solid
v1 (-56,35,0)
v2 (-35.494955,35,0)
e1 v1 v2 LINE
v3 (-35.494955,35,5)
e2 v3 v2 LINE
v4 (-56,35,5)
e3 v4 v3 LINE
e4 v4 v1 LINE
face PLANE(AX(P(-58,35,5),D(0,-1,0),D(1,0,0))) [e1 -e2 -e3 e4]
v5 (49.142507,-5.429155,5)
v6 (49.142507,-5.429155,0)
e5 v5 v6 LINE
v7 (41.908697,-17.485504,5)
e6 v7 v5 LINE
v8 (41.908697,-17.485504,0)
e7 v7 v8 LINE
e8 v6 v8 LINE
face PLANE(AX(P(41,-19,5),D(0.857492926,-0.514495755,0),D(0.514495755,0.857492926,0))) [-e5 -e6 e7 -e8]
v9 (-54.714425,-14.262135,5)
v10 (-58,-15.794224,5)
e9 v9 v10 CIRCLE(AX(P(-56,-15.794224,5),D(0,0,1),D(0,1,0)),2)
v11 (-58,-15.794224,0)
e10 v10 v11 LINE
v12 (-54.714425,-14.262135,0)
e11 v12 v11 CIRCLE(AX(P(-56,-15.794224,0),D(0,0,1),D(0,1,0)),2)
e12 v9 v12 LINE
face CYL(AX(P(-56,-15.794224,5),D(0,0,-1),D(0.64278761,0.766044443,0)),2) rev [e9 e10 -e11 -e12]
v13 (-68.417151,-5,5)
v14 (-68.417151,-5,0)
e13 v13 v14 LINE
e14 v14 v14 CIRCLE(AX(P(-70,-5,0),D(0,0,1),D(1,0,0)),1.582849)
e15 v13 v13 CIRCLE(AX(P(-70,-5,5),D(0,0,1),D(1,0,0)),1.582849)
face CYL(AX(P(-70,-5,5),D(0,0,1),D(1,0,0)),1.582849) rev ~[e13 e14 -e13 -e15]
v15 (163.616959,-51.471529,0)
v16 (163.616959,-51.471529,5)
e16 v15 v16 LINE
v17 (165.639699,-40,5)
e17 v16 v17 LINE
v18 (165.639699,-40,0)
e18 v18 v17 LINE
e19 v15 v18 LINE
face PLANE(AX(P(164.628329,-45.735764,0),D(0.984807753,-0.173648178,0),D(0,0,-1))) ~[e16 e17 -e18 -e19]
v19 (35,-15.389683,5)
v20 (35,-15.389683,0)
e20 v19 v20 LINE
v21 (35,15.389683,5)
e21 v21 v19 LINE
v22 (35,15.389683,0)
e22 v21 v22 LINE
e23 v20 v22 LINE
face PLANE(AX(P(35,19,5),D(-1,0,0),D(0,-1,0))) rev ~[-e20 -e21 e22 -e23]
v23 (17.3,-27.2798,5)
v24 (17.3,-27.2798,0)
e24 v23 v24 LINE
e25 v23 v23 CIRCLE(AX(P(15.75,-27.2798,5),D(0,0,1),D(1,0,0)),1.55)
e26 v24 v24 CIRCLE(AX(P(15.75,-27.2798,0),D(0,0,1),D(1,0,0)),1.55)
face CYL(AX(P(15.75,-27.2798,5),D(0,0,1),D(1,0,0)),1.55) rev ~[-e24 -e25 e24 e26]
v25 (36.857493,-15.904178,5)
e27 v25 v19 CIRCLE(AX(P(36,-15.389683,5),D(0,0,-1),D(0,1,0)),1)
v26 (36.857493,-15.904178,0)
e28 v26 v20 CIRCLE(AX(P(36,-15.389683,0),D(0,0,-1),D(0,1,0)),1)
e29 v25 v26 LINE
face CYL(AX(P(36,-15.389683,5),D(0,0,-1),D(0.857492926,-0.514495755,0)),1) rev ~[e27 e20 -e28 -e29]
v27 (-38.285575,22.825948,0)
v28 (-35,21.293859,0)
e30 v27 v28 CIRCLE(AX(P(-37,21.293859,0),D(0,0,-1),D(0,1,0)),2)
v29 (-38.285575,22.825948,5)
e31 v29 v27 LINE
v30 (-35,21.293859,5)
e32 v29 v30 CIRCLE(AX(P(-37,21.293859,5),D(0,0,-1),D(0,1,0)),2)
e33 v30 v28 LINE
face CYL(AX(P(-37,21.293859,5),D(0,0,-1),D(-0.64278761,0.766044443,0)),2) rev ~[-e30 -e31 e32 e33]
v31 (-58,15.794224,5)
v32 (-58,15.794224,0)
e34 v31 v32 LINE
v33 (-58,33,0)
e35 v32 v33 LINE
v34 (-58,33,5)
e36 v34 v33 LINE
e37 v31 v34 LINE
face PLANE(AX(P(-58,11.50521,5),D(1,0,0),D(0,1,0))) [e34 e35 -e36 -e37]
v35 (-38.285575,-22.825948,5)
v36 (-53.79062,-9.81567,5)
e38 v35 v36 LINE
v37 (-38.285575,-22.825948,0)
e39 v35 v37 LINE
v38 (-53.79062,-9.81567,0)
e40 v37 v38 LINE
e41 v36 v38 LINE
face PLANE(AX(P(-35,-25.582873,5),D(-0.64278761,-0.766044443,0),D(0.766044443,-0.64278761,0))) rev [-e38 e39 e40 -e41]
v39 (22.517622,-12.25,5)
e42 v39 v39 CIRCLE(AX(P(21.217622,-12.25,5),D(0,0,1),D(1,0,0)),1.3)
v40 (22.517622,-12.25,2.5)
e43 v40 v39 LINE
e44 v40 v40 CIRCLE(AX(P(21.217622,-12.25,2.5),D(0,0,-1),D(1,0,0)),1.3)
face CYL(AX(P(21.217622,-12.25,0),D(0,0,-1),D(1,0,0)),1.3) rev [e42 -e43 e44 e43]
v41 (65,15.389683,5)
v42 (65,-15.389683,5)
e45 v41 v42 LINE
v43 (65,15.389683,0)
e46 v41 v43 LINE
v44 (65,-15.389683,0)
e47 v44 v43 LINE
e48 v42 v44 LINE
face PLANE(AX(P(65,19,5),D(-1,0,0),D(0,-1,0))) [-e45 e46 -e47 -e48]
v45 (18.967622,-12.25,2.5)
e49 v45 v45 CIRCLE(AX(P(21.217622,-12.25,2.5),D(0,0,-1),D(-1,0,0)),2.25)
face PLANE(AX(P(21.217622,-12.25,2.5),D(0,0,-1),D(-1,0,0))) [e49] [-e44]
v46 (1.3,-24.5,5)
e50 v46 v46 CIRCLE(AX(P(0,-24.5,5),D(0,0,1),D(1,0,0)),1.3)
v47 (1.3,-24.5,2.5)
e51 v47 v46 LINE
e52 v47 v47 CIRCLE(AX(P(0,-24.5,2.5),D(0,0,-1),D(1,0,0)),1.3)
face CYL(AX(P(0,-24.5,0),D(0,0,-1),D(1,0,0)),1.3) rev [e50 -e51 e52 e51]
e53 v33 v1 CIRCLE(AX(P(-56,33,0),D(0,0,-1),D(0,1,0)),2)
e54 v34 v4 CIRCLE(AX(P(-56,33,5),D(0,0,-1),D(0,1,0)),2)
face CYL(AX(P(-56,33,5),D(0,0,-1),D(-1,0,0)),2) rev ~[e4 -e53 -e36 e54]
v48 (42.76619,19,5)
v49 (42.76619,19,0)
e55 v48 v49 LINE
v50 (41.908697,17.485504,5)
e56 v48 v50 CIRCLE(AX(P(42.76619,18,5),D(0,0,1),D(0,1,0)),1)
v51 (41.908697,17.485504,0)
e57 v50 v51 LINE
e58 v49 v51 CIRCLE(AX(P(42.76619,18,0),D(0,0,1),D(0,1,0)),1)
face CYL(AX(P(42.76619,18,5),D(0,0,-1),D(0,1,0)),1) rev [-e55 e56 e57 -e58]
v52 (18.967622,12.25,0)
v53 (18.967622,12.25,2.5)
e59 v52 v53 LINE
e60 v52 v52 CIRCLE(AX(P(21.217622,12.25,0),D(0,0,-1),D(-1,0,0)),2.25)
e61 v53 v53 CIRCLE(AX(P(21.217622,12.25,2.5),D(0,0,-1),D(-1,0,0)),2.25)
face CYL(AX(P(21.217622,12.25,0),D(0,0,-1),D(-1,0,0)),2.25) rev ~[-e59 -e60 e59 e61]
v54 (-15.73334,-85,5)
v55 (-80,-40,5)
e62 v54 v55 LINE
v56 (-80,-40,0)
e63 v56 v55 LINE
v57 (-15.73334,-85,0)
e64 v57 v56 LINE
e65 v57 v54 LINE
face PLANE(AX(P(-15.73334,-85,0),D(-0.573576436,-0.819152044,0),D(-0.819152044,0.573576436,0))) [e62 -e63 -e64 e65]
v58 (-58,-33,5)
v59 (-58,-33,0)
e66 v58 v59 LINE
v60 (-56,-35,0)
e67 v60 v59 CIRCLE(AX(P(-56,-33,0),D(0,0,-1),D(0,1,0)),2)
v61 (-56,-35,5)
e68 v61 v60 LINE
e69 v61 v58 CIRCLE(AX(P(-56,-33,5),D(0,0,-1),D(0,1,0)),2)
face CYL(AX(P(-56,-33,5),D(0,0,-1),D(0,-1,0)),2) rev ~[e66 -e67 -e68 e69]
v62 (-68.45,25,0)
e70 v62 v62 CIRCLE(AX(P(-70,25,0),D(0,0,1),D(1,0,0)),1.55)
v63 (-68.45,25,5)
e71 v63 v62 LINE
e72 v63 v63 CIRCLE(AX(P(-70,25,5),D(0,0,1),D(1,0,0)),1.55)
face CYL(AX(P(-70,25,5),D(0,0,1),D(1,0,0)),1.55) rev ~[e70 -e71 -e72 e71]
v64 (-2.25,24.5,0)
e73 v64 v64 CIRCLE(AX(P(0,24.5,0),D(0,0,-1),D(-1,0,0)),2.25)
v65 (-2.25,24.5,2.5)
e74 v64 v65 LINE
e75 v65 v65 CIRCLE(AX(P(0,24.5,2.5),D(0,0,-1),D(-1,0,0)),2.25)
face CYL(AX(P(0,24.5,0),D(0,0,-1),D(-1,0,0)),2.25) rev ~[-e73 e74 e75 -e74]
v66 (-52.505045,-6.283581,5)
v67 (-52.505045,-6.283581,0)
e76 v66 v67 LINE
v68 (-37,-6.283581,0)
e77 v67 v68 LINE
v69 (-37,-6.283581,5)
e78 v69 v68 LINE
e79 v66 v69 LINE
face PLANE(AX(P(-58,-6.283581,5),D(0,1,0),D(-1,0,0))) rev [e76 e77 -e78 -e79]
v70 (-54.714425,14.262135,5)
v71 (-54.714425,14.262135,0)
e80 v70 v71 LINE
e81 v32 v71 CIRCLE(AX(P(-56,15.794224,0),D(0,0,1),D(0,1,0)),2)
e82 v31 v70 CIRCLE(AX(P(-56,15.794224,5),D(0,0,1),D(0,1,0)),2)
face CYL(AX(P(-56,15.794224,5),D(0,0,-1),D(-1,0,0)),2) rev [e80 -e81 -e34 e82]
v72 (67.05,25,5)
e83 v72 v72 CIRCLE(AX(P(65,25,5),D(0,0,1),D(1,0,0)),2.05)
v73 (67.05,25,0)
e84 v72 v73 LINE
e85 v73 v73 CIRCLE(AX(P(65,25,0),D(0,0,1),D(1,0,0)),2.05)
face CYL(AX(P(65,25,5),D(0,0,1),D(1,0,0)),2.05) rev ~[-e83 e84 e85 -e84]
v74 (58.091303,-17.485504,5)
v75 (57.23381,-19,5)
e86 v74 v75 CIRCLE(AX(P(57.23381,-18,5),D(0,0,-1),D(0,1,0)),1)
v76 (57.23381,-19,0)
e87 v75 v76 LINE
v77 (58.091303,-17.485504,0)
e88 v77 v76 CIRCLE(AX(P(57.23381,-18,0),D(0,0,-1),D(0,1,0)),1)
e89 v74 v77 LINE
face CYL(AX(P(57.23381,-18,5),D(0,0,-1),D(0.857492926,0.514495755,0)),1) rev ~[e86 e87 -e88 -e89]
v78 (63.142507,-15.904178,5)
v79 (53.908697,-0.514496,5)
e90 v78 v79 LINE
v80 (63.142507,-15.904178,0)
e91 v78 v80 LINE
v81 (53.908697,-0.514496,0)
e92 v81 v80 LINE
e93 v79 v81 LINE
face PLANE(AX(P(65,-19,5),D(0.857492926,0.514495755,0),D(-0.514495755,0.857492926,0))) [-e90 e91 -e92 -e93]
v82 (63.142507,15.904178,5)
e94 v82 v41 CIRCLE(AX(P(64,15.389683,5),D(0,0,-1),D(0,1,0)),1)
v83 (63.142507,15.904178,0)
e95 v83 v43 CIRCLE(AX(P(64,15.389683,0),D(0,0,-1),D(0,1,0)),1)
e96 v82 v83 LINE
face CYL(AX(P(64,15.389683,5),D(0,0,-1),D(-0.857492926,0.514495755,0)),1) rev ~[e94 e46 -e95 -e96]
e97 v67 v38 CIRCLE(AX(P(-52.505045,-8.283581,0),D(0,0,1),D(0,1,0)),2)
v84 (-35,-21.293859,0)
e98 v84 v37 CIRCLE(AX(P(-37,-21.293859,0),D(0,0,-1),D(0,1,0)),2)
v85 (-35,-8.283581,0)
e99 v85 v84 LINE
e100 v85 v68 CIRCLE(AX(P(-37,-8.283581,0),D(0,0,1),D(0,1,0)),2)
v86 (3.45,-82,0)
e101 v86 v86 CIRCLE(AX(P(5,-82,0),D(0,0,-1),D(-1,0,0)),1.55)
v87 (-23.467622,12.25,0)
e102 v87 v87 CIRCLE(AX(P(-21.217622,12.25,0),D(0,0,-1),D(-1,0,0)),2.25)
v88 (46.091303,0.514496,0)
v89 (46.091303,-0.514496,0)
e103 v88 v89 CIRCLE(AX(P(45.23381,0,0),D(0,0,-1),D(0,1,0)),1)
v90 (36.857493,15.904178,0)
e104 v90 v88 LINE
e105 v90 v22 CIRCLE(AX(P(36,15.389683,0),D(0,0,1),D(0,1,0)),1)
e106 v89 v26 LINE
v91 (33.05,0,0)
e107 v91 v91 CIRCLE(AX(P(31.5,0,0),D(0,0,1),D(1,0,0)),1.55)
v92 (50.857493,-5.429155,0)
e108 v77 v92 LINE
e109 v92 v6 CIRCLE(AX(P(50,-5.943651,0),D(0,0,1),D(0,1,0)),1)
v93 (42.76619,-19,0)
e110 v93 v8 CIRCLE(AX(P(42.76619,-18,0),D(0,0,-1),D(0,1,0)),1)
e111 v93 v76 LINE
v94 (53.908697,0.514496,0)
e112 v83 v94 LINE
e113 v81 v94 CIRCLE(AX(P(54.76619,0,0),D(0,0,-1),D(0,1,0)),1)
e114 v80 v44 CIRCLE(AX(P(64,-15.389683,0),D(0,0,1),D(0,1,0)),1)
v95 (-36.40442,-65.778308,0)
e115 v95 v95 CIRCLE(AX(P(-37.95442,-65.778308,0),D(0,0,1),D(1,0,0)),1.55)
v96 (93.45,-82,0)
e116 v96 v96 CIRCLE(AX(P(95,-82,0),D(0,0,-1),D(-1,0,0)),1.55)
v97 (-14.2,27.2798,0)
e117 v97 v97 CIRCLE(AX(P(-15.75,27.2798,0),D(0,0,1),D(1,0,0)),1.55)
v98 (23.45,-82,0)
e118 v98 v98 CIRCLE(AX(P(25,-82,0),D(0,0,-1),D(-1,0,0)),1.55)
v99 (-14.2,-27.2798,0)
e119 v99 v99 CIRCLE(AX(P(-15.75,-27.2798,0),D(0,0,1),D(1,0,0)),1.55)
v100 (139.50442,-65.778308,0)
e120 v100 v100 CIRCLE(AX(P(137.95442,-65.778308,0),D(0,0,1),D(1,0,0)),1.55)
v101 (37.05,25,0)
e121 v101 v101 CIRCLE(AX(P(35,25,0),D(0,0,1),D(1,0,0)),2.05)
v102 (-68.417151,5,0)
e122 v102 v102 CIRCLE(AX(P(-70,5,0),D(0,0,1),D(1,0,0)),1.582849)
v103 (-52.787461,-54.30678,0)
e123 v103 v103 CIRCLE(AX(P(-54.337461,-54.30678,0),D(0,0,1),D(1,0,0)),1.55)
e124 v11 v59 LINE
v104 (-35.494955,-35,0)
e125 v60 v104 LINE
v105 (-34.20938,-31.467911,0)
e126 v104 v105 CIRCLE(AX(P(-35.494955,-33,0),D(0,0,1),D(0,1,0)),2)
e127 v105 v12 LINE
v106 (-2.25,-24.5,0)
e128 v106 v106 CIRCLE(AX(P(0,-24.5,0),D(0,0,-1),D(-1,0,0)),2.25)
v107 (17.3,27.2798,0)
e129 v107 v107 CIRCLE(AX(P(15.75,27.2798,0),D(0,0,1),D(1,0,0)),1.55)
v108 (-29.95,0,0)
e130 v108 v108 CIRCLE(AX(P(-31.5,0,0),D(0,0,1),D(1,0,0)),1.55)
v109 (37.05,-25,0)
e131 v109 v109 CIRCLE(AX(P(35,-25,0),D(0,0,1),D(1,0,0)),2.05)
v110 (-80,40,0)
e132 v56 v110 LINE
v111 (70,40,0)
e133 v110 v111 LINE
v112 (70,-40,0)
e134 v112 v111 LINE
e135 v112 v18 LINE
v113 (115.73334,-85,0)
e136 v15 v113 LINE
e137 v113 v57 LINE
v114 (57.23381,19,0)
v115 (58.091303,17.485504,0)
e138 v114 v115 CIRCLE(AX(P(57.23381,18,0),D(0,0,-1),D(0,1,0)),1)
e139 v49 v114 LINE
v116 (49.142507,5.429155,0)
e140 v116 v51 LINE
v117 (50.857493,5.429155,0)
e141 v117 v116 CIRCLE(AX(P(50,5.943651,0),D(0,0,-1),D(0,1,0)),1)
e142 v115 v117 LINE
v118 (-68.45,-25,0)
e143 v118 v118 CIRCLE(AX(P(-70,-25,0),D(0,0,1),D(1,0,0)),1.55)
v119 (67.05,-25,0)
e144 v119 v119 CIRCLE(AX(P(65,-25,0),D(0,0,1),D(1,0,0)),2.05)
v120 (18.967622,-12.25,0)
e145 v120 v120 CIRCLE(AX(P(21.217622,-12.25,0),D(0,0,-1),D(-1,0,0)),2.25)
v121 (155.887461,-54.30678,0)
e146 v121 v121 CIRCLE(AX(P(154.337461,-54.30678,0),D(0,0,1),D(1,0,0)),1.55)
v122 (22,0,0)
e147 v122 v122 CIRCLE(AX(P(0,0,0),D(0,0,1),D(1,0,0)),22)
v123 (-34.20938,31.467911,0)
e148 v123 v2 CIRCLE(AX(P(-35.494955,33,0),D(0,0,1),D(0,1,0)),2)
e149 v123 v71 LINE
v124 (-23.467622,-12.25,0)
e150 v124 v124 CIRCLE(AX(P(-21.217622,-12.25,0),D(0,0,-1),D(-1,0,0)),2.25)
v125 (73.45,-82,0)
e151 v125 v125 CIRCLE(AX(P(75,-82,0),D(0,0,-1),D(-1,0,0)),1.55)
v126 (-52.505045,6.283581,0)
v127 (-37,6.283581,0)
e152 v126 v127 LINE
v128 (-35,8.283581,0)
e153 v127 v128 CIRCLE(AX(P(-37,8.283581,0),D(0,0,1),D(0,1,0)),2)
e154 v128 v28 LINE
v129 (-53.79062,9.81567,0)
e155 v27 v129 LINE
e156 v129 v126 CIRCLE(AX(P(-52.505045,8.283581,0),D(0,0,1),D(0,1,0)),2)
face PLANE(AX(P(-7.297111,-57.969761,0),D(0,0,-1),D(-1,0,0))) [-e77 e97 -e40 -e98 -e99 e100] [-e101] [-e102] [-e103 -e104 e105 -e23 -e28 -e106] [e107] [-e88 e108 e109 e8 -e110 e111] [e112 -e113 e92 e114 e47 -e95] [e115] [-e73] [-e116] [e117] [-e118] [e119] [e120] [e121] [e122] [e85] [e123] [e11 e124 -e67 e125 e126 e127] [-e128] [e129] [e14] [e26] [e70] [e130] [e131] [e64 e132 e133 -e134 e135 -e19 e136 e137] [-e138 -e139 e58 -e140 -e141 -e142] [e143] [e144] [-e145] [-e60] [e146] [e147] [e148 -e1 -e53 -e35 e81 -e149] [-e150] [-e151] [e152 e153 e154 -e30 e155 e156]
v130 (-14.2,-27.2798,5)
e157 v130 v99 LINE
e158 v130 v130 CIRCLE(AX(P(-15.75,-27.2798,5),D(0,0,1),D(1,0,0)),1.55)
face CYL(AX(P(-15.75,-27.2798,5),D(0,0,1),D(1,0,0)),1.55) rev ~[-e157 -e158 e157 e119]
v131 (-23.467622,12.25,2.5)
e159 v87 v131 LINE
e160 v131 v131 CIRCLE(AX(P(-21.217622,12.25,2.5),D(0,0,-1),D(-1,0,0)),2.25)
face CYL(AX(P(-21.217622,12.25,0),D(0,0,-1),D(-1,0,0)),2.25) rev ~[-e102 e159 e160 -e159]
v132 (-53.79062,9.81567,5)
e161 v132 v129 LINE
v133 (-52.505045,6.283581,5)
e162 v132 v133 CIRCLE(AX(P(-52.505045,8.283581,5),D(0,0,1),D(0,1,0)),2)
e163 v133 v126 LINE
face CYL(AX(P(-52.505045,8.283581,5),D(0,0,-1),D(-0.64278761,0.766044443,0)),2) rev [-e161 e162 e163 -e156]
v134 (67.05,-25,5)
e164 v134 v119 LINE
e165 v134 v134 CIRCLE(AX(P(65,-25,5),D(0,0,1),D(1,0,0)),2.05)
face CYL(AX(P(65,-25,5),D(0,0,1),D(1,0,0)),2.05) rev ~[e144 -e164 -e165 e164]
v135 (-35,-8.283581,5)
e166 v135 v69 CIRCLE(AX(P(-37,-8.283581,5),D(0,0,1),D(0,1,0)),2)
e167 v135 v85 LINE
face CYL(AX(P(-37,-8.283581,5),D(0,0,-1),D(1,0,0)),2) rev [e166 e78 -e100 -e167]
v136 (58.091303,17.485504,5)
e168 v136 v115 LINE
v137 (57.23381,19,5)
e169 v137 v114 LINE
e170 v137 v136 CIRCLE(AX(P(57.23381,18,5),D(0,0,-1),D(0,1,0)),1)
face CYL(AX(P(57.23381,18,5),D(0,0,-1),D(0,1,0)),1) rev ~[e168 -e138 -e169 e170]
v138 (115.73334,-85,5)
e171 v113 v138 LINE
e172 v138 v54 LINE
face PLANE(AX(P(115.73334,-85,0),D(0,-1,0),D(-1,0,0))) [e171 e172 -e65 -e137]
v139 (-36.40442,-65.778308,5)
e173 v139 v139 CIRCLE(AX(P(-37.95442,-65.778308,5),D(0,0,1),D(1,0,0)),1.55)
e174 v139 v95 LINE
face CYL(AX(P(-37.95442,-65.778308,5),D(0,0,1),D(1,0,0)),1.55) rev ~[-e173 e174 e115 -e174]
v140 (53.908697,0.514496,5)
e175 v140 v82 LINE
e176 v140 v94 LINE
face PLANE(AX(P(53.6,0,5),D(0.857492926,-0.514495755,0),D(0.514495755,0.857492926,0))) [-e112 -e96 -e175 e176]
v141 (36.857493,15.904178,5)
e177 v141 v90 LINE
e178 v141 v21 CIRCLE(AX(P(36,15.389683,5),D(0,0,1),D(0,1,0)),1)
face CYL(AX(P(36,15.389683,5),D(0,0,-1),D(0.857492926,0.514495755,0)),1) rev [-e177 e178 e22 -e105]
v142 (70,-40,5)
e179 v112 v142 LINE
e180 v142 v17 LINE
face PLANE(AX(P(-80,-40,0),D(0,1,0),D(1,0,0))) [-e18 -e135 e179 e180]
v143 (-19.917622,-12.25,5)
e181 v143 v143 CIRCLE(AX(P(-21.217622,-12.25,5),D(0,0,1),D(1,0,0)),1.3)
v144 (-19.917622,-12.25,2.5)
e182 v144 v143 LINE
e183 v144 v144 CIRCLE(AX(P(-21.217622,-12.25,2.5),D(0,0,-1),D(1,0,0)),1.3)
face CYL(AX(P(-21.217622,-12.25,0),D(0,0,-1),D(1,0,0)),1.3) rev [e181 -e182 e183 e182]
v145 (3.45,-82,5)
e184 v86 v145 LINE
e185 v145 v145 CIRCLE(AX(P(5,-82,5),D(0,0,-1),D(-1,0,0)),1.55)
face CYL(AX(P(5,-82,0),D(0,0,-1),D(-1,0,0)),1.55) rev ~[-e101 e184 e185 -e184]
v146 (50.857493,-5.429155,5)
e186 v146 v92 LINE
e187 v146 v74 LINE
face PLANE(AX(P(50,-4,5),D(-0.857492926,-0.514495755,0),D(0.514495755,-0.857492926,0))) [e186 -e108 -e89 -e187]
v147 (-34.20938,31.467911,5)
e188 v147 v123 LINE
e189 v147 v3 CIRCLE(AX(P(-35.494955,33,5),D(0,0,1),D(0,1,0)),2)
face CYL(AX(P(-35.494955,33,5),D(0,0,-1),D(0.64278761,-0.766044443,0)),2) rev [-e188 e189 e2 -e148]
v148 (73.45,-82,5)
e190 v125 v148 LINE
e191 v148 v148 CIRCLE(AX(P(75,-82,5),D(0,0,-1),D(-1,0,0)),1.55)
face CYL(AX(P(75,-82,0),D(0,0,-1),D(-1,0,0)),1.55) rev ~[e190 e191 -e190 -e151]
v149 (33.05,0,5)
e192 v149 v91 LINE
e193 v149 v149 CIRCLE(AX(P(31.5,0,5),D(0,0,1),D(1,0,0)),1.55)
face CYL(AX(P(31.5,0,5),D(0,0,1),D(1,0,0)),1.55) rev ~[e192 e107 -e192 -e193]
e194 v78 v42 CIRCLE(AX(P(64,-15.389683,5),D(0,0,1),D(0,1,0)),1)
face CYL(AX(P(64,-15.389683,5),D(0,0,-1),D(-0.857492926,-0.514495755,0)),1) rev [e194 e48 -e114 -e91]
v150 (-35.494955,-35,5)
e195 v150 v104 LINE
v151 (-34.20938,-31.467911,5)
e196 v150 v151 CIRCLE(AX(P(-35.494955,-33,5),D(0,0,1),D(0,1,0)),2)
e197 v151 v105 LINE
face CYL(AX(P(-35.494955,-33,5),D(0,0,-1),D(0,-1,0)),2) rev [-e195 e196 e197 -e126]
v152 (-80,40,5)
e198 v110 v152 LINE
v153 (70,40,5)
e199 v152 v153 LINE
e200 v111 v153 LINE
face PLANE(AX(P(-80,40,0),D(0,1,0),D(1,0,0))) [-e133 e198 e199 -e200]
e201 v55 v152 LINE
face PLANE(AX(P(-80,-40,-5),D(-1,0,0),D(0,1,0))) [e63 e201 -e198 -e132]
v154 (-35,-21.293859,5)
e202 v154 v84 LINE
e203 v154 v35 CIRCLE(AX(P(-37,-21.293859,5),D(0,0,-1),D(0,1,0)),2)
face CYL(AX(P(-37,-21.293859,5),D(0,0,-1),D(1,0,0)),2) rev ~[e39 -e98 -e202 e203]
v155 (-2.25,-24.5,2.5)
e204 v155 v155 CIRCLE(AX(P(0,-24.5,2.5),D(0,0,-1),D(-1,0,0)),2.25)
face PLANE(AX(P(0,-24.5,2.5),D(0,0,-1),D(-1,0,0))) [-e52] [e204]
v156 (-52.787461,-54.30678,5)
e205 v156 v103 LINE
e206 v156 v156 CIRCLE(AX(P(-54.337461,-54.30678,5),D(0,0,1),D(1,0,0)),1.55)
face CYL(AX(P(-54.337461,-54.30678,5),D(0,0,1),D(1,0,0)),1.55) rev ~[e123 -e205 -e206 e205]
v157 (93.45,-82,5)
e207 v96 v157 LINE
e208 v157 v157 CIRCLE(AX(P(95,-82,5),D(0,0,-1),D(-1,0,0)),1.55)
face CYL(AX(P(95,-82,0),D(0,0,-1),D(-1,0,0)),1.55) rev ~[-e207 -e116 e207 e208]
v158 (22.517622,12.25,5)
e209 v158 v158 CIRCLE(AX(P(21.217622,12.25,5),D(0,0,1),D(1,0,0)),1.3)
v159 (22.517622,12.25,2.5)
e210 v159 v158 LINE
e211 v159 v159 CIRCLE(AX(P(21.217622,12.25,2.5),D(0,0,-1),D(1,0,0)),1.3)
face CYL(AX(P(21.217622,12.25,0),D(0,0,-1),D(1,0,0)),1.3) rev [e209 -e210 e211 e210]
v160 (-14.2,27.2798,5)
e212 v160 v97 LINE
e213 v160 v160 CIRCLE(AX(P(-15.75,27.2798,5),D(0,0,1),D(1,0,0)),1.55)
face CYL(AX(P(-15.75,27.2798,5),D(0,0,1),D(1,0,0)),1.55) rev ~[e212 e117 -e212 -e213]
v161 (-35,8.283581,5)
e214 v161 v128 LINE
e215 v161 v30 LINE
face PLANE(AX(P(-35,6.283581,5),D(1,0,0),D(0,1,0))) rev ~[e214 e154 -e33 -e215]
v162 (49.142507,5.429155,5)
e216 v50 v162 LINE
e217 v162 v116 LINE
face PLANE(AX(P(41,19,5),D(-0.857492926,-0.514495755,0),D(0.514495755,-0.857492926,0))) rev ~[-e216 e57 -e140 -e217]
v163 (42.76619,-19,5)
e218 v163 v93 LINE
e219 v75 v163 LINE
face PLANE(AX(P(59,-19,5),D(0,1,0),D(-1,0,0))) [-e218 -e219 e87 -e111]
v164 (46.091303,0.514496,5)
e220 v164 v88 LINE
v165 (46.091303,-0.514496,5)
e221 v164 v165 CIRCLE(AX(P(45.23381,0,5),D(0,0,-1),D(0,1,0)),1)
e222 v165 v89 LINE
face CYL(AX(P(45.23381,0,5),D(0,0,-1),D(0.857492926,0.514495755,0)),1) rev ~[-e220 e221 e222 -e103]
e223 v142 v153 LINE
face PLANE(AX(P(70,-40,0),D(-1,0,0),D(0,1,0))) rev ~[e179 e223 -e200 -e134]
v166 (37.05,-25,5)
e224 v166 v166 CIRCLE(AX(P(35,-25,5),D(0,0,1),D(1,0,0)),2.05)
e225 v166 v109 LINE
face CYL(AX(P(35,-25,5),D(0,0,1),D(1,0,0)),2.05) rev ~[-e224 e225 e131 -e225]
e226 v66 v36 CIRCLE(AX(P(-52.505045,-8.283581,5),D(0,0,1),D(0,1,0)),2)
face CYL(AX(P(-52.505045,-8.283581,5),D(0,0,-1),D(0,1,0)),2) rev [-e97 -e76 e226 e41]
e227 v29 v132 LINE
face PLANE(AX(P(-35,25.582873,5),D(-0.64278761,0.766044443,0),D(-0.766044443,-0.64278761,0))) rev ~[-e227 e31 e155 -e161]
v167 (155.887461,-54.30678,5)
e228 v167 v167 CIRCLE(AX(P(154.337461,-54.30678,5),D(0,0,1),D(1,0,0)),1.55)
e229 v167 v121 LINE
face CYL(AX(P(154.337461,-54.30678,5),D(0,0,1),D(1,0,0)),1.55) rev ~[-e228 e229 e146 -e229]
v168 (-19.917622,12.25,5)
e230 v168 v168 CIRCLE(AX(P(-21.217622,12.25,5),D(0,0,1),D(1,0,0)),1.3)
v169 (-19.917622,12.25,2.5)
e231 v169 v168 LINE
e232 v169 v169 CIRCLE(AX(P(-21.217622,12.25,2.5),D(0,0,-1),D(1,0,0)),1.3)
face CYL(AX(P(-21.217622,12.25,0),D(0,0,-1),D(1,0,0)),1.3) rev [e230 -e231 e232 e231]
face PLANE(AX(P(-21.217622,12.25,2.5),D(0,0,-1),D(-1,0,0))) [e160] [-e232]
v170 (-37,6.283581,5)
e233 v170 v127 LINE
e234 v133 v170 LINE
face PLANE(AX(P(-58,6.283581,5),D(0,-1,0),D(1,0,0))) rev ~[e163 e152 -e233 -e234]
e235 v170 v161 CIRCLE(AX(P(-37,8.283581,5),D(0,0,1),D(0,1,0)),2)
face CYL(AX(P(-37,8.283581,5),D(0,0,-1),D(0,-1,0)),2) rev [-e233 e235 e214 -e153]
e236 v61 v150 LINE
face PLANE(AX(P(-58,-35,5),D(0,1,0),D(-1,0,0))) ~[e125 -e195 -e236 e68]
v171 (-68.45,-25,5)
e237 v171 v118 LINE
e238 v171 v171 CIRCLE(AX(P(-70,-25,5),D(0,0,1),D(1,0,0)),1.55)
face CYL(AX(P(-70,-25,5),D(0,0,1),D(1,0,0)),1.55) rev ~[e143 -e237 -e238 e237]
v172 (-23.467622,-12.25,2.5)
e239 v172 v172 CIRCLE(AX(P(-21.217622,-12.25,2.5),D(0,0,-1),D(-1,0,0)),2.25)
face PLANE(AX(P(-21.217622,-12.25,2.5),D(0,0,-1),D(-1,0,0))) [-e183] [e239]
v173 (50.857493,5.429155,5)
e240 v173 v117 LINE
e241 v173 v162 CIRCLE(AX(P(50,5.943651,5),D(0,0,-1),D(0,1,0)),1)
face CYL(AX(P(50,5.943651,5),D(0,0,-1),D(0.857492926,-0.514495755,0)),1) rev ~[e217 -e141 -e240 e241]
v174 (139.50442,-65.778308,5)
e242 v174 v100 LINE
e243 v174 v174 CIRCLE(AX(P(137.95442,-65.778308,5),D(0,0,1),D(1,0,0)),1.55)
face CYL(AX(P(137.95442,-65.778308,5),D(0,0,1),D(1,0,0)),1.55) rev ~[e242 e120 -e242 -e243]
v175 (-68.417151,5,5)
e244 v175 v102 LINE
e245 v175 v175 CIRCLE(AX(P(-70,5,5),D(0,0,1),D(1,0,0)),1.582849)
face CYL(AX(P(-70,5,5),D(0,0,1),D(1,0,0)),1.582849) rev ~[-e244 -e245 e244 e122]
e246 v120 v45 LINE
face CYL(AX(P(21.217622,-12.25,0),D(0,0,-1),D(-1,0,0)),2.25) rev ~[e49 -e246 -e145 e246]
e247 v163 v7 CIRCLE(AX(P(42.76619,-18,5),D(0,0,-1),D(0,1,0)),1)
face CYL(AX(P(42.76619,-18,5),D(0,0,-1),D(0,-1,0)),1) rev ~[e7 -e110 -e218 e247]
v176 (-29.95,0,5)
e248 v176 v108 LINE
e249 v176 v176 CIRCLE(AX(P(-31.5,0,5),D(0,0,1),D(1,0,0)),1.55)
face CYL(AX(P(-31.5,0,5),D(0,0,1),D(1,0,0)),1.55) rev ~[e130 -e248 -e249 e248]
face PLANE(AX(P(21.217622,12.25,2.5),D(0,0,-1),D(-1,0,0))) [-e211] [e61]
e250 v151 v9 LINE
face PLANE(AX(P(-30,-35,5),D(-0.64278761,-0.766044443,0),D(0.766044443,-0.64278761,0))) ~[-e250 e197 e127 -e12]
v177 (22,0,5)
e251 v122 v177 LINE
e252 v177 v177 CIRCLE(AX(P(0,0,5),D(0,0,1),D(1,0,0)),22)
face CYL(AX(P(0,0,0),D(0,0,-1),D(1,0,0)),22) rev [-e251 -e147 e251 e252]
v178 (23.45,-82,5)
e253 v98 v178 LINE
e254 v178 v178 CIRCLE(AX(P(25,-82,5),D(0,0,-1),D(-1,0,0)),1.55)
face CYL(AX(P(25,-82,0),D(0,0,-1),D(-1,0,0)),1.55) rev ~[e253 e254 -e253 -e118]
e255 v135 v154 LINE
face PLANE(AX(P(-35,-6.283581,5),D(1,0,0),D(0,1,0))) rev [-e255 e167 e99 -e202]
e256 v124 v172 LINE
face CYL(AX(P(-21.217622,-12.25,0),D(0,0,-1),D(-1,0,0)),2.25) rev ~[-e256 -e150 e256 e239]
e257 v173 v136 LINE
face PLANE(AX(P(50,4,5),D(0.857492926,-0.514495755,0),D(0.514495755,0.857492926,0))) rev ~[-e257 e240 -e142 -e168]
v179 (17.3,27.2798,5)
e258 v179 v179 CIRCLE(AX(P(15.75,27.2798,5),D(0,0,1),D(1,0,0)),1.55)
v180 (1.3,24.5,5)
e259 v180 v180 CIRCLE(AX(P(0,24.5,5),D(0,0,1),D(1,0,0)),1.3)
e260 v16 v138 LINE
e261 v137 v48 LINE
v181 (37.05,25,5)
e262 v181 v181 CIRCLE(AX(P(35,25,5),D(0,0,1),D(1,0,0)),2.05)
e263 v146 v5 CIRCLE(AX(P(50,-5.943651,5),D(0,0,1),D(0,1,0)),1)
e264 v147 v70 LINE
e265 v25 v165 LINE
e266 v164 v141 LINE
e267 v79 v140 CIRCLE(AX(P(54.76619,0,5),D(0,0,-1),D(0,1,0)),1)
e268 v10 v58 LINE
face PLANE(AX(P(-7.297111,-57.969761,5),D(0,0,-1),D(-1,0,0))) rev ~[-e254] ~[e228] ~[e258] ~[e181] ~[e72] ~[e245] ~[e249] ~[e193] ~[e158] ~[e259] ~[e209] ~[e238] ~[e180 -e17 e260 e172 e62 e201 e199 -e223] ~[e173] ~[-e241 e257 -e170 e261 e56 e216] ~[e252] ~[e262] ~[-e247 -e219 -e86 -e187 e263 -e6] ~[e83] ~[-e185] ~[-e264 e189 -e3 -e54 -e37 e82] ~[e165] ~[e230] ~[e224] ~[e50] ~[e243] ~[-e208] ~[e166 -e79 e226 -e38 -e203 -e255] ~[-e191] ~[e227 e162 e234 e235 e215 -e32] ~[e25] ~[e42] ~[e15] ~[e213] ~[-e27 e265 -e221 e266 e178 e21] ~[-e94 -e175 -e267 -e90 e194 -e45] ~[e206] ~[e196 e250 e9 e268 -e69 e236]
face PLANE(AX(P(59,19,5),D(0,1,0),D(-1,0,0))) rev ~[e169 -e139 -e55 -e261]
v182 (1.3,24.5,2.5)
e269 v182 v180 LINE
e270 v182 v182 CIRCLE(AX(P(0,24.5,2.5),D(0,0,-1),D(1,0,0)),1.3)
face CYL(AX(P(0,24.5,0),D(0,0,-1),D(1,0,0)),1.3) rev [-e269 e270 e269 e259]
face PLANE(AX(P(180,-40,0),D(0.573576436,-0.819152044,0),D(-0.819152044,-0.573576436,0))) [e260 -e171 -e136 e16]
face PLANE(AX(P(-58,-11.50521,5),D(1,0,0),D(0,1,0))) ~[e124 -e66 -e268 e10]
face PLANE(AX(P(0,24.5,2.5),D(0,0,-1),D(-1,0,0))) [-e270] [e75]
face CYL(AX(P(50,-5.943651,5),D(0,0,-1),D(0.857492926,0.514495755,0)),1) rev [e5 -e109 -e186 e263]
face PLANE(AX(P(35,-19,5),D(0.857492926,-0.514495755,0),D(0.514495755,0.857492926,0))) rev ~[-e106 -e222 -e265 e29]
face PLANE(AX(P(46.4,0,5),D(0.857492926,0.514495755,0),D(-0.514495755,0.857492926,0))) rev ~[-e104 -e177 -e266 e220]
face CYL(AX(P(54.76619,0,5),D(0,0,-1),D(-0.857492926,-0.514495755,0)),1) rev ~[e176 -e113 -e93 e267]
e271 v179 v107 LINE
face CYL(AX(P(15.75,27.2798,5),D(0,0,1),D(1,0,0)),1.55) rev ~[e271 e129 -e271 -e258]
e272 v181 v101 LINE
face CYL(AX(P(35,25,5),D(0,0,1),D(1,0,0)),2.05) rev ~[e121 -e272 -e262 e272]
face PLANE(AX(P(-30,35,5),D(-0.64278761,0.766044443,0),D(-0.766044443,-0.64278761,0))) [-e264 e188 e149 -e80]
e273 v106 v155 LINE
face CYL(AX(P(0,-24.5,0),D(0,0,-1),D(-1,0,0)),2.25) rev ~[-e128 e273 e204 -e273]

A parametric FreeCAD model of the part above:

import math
import FreeCAD as App
import Part
import Sketcher
from FreeCAD import Vector
Q = App.Units.Quantity


def edges_at(feature, points):
    """Names of the edges that pass closest to the given points."""
    edges = feature.Shape.Edges
    near = lambda p: min(range(len(edges)), key=lambda i: edges[i].distToShape(Part.Vertex(*p))[0])
    return sorted({f"Edge{near(p) + 1}" for p in points})


def add_polygon(sketch, points):
    """Adds a closed chain of lines whose ends are joined by coincident constraints."""
    first, n = sketch.GeometryCount, len(points)
    for a, b in zip(points, points[1:] + points[:1]):
        sketch.addGeometry(Part.LineSegment(App.Vector(*a, 0), App.Vector(*b, 0)), False)
    for i in range(n):
        sketch.addConstraint(Sketcher.Constraint("Coincident", first + i, 2, first + (i + 1) % n, 1))

doc = App.newDocument("Part")
body = doc.addObject("PartDesign::Body", "Body")

sketch1 = body.newObject("Sketcher::SketchObject", "Sketch")
sketch1.AttachmentSupport = (doc.getObject("XY_Plane"), [""])
sketch1.MapMode = "FlatFace"
add_polygon(sketch1, [(-80, 40), (-80, -40), (70, -40), (70, 40)])
sketch1.addGeometry(Part.Circle(Vector(-21.2, -12.2, 0), Vector(0, 0, 1), 1.3), False)
sketch1.addGeometry(Part.Circle(Vector(0, -24.5, 0), Vector(0, 0, 1), 1.3), False)
sketch1.addGeometry(Part.Circle(Vector(21.2, -12.2, 0), Vector(0, 0, 1), 1.3), False)
sketch1.addGeometry(Part.Circle(Vector(-21.2, 12.2, 0), Vector(0, 0, 1), 1.3), False)
sketch1.addGeometry(Part.Circle(Vector(0, 0, 0), Vector(0, 0, 1), 22), False)
sketch1.addGeometry(Part.Circle(Vector(21.2, 12.2, 0), Vector(0, 0, 1), 1.3), False)
sketch1.addGeometry(Part.Circle(Vector(0, 24.5, 0), Vector(0, 0, 1), 1.3), False)
sketch1.addConstraint(Sketcher.Constraint("Vertical", 0))
sketch1.addConstraint(Sketcher.Constraint("Horizontal", 1))
sketch1.addConstraint(Sketcher.Constraint("Vertical", 2))
sketch1.addConstraint(Sketcher.Constraint("Horizontal", 3))
sketch1.addConstraint(Sketcher.Constraint("Coincident", 8, 3, -1, 1))
sketch1.addConstraint(Sketcher.Constraint("Equal", 4, 5))
sketch1.addConstraint(Sketcher.Constraint("Equal", 5, 6))
sketch1.addConstraint(Sketcher.Constraint("Equal", 6, 7))
sketch1.addConstraint(Sketcher.Constraint("Equal", 7, 9))
sketch1.addConstraint(Sketcher.Constraint("Equal", 9, 10))
sketch1.addConstraint(Sketcher.Constraint("Symmetric", 6, 3, 7, 3, -1, 1))
sketch1.addConstraint(Sketcher.Constraint("Symmetric", 4, 3, 9, 3, -1, 1))
sketch1.addConstraint(Sketcher.Constraint("Symmetric", 5, 3, 10, 3, -1, 1))
sketch1.addConstraint(Sketcher.Constraint("Symmetric", 4, 3, 6, 3, -2))
sketch1.addConstraint(Sketcher.Constraint("PointOnObject", 5, 3, -2))
sketch1.addConstraint(Sketcher.Constraint("Diameter", 8, 44.0))
sketch1.addConstraint(Sketcher.Constraint("Diameter", 4, 2.6))
sketch1.addConstraint(Sketcher.Constraint("DistanceX", 1, 1, 1, 2, 150.0))
sketch1.addConstraint(Sketcher.Constraint("DistanceY", 0, 2, 0, 1, 80.0))
sketch1.addConstraint(Sketcher.Constraint("DistanceX", 0, 2, -1, 1, 80.0))
sketch1.addConstraint(Sketcher.Constraint("DistanceY", 0, 2, -1, 1, 40.0))
sketch1.addConstraint(Sketcher.Constraint("DistanceY", 5, 3, -1, 1, 24.5))
sketch1.addConstraint(Sketcher.Constraint("DistanceY", 4, 3, 7, 3, 24.5))
sketch1.addConstraint(Sketcher.Constraint("DistanceX", 4, 3, -1, 1, 21.217622))
pad1 = body.newObject("PartDesign::Pad", "Pad")
pad1.Profile = sketch1
pad1.Length = 5

sketch2 = body.newObject("Sketcher::SketchObject", "Sketch001")
sketch2.AttachmentSupport = (doc.getObject("XY_Plane"), [""])
sketch2.MapMode = "FlatFace"
sketch2.AttachmentOffset = App.Placement(Vector(0, 0, 5), App.Rotation())
sketch2.addGeometry(Part.Circle(Vector(-70, -25, 0), Vector(0, 0, 1), 1.6), False)
sketch2.addGeometry(Part.Circle(Vector(-70, -5, 0), Vector(0, 0, 1), 1.6), False)
sketch2.addGeometry(Part.Circle(Vector(-70, 25, 0), Vector(0, 0, 1), 1.6), False)
sketch2.addGeometry(Part.Circle(Vector(-70, 5, 0), Vector(0, 0, 1), 1.6), False)
sketch2.addConstraint(Sketcher.Constraint("Equal", 0, 2))
sketch2.addConstraint(Sketcher.Constraint("Equal", 1, 3))
sketch2.addConstraint(Sketcher.Constraint("Symmetric", 0, 3, 2, 3, -1))
sketch2.addConstraint(Sketcher.Constraint("Symmetric", 1, 3, 3, 3, -1))
sketch2.addConstraint(Sketcher.Constraint("Vertical", 0, 3, 1, 3))
sketch2.addConstraint(Sketcher.Constraint("Diameter", 0, 3.1))
sketch2.addConstraint(Sketcher.Constraint("DistanceX", 0, 3, -1, 1, 70.0))
sketch2.addConstraint(Sketcher.Constraint("DistanceY", 0, 3, -1, 1, 25.0))
sketch2.addConstraint(Sketcher.Constraint("DistanceY", 1, 3, -1, 1, 5.0))
sketch2.addConstraint(Sketcher.Constraint("Diameter", 1, 3.165699))
pocket1 = body.newObject("PartDesign::Pocket", "Pocket")
pocket1.Profile = sketch2
pocket1.Length = 12.5

sketch3 = body.newObject("Sketcher::SketchObject", "Sketch002")
sketch3.AttachmentSupport = (doc.getObject("XY_Plane"), [""])
sketch3.MapMode = "FlatFace"
sketch3.AttachmentOffset = App.Placement(Vector(0, 0, 5), App.Rotation())
add_polygon(sketch3, [(-30, 35), (-58, 35), (-58, 12)])
add_polygon(sketch3, [(-35, 26), (-58, 6), (-35, 6)])
sketch3.addConstraint(Sketcher.Constraint("Horizontal", 0))
sketch3.addConstraint(Sketcher.Constraint("Vertical", 1))
sketch3.addConstraint(Sketcher.Constraint("Horizontal", 4))
sketch3.addConstraint(Sketcher.Constraint("Vertical", 5))
sketch3.addConstraint(Sketcher.Constraint("Parallel", 2, 3))
sketch3.addConstraint(Sketcher.Constraint("Vertical", 1, 2, 3, 2))
sketch3.addConstraint(Sketcher.Constraint("DistanceX", 0, 2, 0, 1, 28.0))
sketch3.addConstraint(Sketcher.Constraint("DistanceX", 4, 1, 4, 2, 23.0))
sketch3.addConstraint(Sketcher.Constraint("Angle", 2, Q("40 deg")))
sketch3.addConstraint(Sketcher.Constraint("DistanceX", 0, 2, -1, 1, 58.0))
sketch3.addConstraint(Sketcher.Constraint("DistanceY", -1, 1, 0, 2, 35.0))
sketch3.addConstraint(Sketcher.Constraint("DistanceY", -1, 1, 3, 2, 6.283581))
pocket2 = body.newObject("PartDesign::Pocket", "Pocket001")
pocket2.Profile = sketch3
pocket2.Length = 8
doc.recompute()

fillet = body.newObject("PartDesign::Fillet", "Fillet")
fillet.Base = (pocket2, edges_at(pocket2, [
    (-35, 6.284, 2.5),
    (-58, 6.284, 2.5),
    (-35, 25.583, 2.5),
    (-30, 35, 2.5),
    (-58, 11.505, 2.5),
    (-58, 35, 2.5),
]))
fillet.Radius = 2
doc.recompute()

mirrored = body.newObject("PartDesign::Mirrored", "Mirrored")
mirrored.Originals = [pocket2]
mirrored.MirrorPlane = (doc.getObject("XZ_Plane"), [""])
body.Tip = mirrored
doc.recompute()

fillet2 = body.newObject("PartDesign::Fillet", "Fillet001")
fillet2.Base = (mirrored, edges_at(mirrored, [
    (-35, -6.284, 2.5),
    (-58, -6.284, 2.5),
    (-35, -25.583, 2.5),
    (-30, -35, 2.5),
    (-58, -11.505, 2.5),
    (-58, -35, 2.5),
]))
fillet2.Radius = 2

sketch4 = body.newObject("Sketcher::SketchObject", "Sketch003")
sketch4.AttachmentSupport = (doc.getObject("XY_Plane"), [""])
sketch4.MapMode = "FlatFace"
sketch4.AttachmentOffset = App.Placement(Vector(0, 0, 5), App.Rotation())
add_polygon(sketch4, [(-127, -7), (-80, -40), (-80, 40)])
sketch4.addConstraint(Sketcher.Constraint("Vertical", 1))
sketch4.addConstraint(Sketcher.Constraint("DistanceY", 1, 1, 1, 2, 80.0))
sketch4.addConstraint(Sketcher.Constraint("Angle", 0, Q("-35 deg")))
sketch4.addConstraint(Sketcher.Constraint("Angle", 2, Q("-135 deg")))
sketch4.addConstraint(Sketcher.Constraint("DistanceX", 0, 2, -1, 1, 80.0))
sketch4.addConstraint(Sketcher.Constraint("DistanceY", 0, 2, -1, 1, 40.0))
pad2 = body.newObject("PartDesign::Pad", "Pad001")
pad2.Profile = sketch4
pad2.Length = 5
pad2.Reversed = True
doc.recompute()

fillet3 = body.newObject("PartDesign::Fillet", "Fillet002")
fillet3.Base = (pad2, edges_at(pad2, [(-127.053, -7.053, 2.5)]))
fillet3.Radius = 5

sketch5 = body.newObject("Sketcher::SketchObject", "Sketch004")
sketch5.AttachmentSupport = (doc.getObject("XY_Plane"), [""])
sketch5.MapMode = "FlatFace"
sketch5.AttachmentOffset = App.Placement(Vector(0, 0, 5), App.Rotation())
sketch5.addGeometry(Part.Circle(Vector(-15.8, 27.3, 0), Vector(0, 0, 1), 1.6), False)
sketch5.addGeometry(Part.Circle(Vector(15.8, 27.3, 0), Vector(0, 0, 1), 1.6), False)
sketch5.addGeometry(Part.Circle(Vector(31.5, 0, 0), Vector(0, 0, 1), 1.6), False)
sketch5.addGeometry(Part.Circle(Vector(15.8, -27.3, 0), Vector(0, 0, 1), 1.6), False)
sketch5.addGeometry(Part.Circle(Vector(-15.8, -27.3, 0), Vector(0, 0, 1), 1.6), False)
sketch5.addGeometry(Part.Circle(Vector(-31.5, 0, 0), Vector(0, 0, 1), 1.6), False)
sketch5.addConstraint(Sketcher.Constraint("Equal", 0, 1))
sketch5.addConstraint(Sketcher.Constraint("Equal", 1, 2))
sketch5.addConstraint(Sketcher.Constraint("Equal", 2, 3))
sketch5.addConstraint(Sketcher.Constraint("Equal", 3, 4))
sketch5.addConstraint(Sketcher.Constraint("Equal", 4, 5))
sketch5.addConstraint(Sketcher.Constraint("Symmetric", 0, 3, 3, 3, -1, 1))
sketch5.addConstraint(Sketcher.Constraint("Symmetric", 1, 3, 4, 3, -1, 1))
sketch5.addConstraint(Sketcher.Constraint("Symmetric", 2, 3, 5, 3, -1, 1))
sketch5.addConstraint(Sketcher.Constraint("Symmetric", 0, 3, 1, 3, -2))
sketch5.addConstraint(Sketcher.Constraint("PointOnObject", 2, 3, -1))
sketch5.addConstraint(Sketcher.Constraint("Diameter", 0, 3.1))
sketch5.addConstraint(Sketcher.Constraint("DistanceX", 5, 3, 2, 3, 63.0))
sketch5.addConstraint(Sketcher.Constraint("DistanceX", 0, 3, 1, 3, 31.5))
sketch5.addConstraint(Sketcher.Constraint("DistanceY", -1, 1, 0, 3, 27.2798))
pocket3 = body.newObject("PartDesign::Pocket", "Pocket002")
pocket3.Profile = sketch5
pocket3.Length = 25

sketch6 = body.newObject("Sketcher::SketchObject", "Sketch005")
sketch6.AttachmentSupport = (doc.getObject("XY_Plane"), [""])
sketch6.MapMode = "FlatFace"
sketch6.AttachmentOffset = App.Placement(Vector(0, 0, 5), App.Rotation())
sketch6.addGeometry(Part.Circle(Vector(35, 25, 0), Vector(0, 0, 1), 2), False)
sketch6.addGeometry(Part.Circle(Vector(65, 25, 0), Vector(0, 0, 1), 2), False)
sketch6.addGeometry(Part.Circle(Vector(65, -25, 0), Vector(0, 0, 1), 2), False)
sketch6.addGeometry(Part.Circle(Vector(35, -25, 0), Vector(0, 0, 1), 2), False)
sketch6.addConstraint(Sketcher.Constraint("Equal", 0, 1))
sketch6.addConstraint(Sketcher.Constraint("Equal", 1, 2))
sketch6.addConstraint(Sketcher.Constraint("Equal", 2, 3))
sketch6.addConstraint(Sketcher.Constraint("Symmetric", 1, 3, 2, 3, -1))
sketch6.addConstraint(Sketcher.Constraint("Symmetric", 0, 3, 3, 3, -1))
sketch6.addConstraint(Sketcher.Constraint("Horizontal", 0, 3, 1, 3))
sketch6.addConstraint(Sketcher.Constraint("Diameter", 0, 4.1))
sketch6.addConstraint(Sketcher.Constraint("DistanceX", -1, 1, 0, 3, 35.0))
sketch6.addConstraint(Sketcher.Constraint("DistanceY", -1, 1, 0, 3, 25.0))
sketch6.addConstraint(Sketcher.Constraint("DistanceX", -1, 1, 1, 3, 65.0))
pocket4 = body.newObject("PartDesign::Pocket", "Pocket003")
pocket4.Profile = sketch6
pocket4.Length = 10

sketch7 = body.newObject("Sketcher::SketchObject", "Sketch006")
sketch7.AttachmentSupport = (doc.getObject("XY_Plane"), [""])
sketch7.MapMode = "FlatFace"
sketch7.AttachmentOffset = App.Placement(Vector(0, 0, 5), App.Rotation())
add_polygon(sketch7, [(35, 19), (35, -19), (46, 0)])
add_polygon(sketch7, [(54, 0), (65, -19), (65, 19)])
add_polygon(sketch7, [(41, 19), (50, 4), (59, 19)])
add_polygon(sketch7, [(59, -19), (50, -4), (41, -19)])
sketch7.addConstraint(Sketcher.Constraint("Vertical", 0))
sketch7.addConstraint(Sketcher.Constraint("Vertical", 4))
sketch7.addConstraint(Sketcher.Constraint("Horizontal", 8))
sketch7.addConstraint(Sketcher.Constraint("Horizontal", 11))
sketch7.addConstraint(Sketcher.Constraint("Symmetric", 6, 2, 9, 2, -1))
sketch7.addConstraint(Sketcher.Constraint("Symmetric", 8, 2, 10, 2, -1))
sketch7.addConstraint(Sketcher.Constraint("PointOnObject", 1, 2, -1))
sketch7.addConstraint(Sketcher.Constraint("PointOnObject", 5, 2, -1))
sketch7.addConstraint(Sketcher.Constraint("Parallel", 2, 3))
sketch7.addConstraint(Sketcher.Constraint("Parallel", 1, 5))
sketch7.addConstraint(Sketcher.Constraint("Parallel", 3, 6))
sketch7.addConstraint(Sketcher.Constraint("Parallel", 5, 7))
sketch7.addConstraint(Sketcher.Constraint("Parallel", 6, 9))
sketch7.addConstraint(Sketcher.Constraint("Parallel", 7, 10))
sketch7.addConstraint(Sketcher.Constraint("Horizontal", 0, 2, 3, 2))
sketch7.addConstraint(Sketcher.Constraint("Horizontal", 4, 2, 7, 2))
sketch7.addConstraint(Sketcher.Constraint("DistanceX", 8, 2, 8, 1, 18.0))
sketch7.addConstraint(Sketcher.Constraint("DistanceY", 0, 2, 0, 1, 38.0))
sketch7.addConstraint(Sketcher.Constraint("DistanceX", -1, 1, 0, 2, 35.0))
sketch7.addConstraint(Sketcher.Constraint("DistanceX", -1, 1, 3, 2, 65.0))
sketch7.addConstraint(Sketcher.Constraint("DistanceX", -1, 1, 6, 2, 50.0))
sketch7.addConstraint(Sketcher.Constraint("DistanceY", -1, 1, 6, 2, 4.0))
pocket5 = body.newObject("PartDesign::Pocket", "Pocket004")
pocket5.Profile = sketch7
pocket5.Length = 10
doc.recompute()

fillet4 = body.newObject("PartDesign::Fillet", "Fillet003")
fillet4.Base = (pocket5, edges_at(pocket5, [
    (41, 19, 2.5),
    (59, 19, 2.5),
    (50, 4, 2.5),
    (65, 19, 2.5),
    (65, -19, 2.5),
    (53.6, 0, 2.5),
    (41, -19, 2.5),
    (50, -4, 2.5),
    (59, -19, 2.5),
    (35, 19, 2.5),
    (46.4, 0, 2.5),
    (35, -19, 2.5),
]))
fillet4.Radius = 1

sketch8 = body.newObject("Sketcher::SketchObject", "Sketch007")
sketch8.AttachmentSupport = (doc.getObject("XY_Plane"), [""])
sketch8.MapMode = "FlatFace"
sketch8.addGeometry(Part.Circle(Vector(0, 24.5, 0), Vector(0, 0, 1), 2.2), False)
sketch8.addGeometry(Part.Circle(Vector(-21.2, 12.2, 0), Vector(0, 0, 1), 2.2), False)
sketch8.addGeometry(Part.Circle(Vector(-21.2, -12.2, 0), Vector(0, 0, 1), 2.2), False)
sketch8.addGeometry(Part.Circle(Vector(0, -24.5, 0), Vector(0, 0, 1), 2.2), False)
sketch8.addGeometry(Part.Circle(Vector(21.2, -12.2, 0), Vector(0, 0, 1), 2.2), False)
sketch8.addGeometry(Part.Circle(Vector(21.2, 12.2, 0), Vector(0, 0, 1), 2.2), False)
sketch8.addConstraint(Sketcher.Constraint("Equal", 0, 1))
sketch8.addConstraint(Sketcher.Constraint("Equal", 1, 2))
sketch8.addConstraint(Sketcher.Constraint("Equal", 2, 3))
sketch8.addConstraint(Sketcher.Constraint("Equal", 3, 4))
sketch8.addConstraint(Sketcher.Constraint("Equal", 4, 5))
sketch8.addConstraint(Sketcher.Constraint("Symmetric", 0, 3, 3, 3, -1, 1))
sketch8.addConstraint(Sketcher.Constraint("Symmetric", 1, 3, 4, 3, -1, 1))
sketch8.addConstraint(Sketcher.Constraint("Symmetric", 2, 3, 5, 3, -1, 1))
sketch8.addConstraint(Sketcher.Constraint("Symmetric", 2, 3, 4, 3, -2))
sketch8.addConstraint(Sketcher.Constraint("PointOnObject", 0, 3, -2))
sketch8.addConstraint(Sketcher.Constraint("Diameter", 0, 4.5))
sketch8.addConstraint(Sketcher.Constraint("DistanceY", 3, 3, 0, 3, 49.0))
sketch8.addConstraint(Sketcher.Constraint("DistanceY", 2, 3, 1, 3, 24.5))
sketch8.addConstraint(Sketcher.Constraint("DistanceX", 1, 3, -1, 1, 21.217622))
pocket6 = body.newObject("PartDesign::Pocket", "Pocket005")
pocket6.Profile = sketch8
pocket6.Length = 2.5
pocket6.Reversed = True

sketch9 = body.newObject("Sketcher::SketchObject", "Sketch008")
sketch9.AttachmentSupport = (doc.getObject("XY_Plane"), [""])
sketch9.MapMode = "FlatFace"
add_polygon(sketch9, [(-16, -85), (-80, -40), (180, -40), (116, -85)])
sketch9.addConstraint(Sketcher.Constraint("Horizontal", 1))
sketch9.addConstraint(Sketcher.Constraint("Horizontal", 3))
sketch9.addConstraint(Sketcher.Constraint("Equal", 0, 2))
sketch9.addConstraint(Sketcher.Constraint("DistanceX", 1, 1, 1, 2, 260.0))
sketch9.addConstraint(Sketcher.Constraint("Angle", 0, Q("145 deg")))
sketch9.addConstraint(Sketcher.Constraint("DistanceX", 0, 2, -1, 1, 80.0))
sketch9.addConstraint(Sketcher.Constraint("DistanceY", 0, 2, -1, 1, 40.0))
sketch9.addConstraint(Sketcher.Constraint("DistanceY", 2, 2, -1, 1, 85.0))
pad3 = body.newObject("PartDesign::Pad", "Pad002")
pad3.Profile = sketch9
pad3.Length = 5
doc.recompute()

chamfer = body.newObject("PartDesign::Chamfer", "Chamfer")
chamfer.Base = (pad3, edges_at(pad3, [(180, -40, 2.5)]))
chamfer.ChamferType = "Two distances"
chamfer.Size = 20
chamfer.Size2 = 14.360301
chamfer.FlipDirection = True

sketch10 = body.newObject("Sketcher::SketchObject", "Sketch009")
sketch10.AttachmentSupport = (doc.getObject("XY_Plane"), [""])
sketch10.MapMode = "FlatFace"
sketch10.addGeometry(Part.Circle(Vector(95, -82, 0), Vector(0, 0, 1), 1.6), False)
sketch10.addGeometry(Part.Circle(Vector(75, -82, 0), Vector(0, 0, 1), 1.6), False)
sketch10.addGeometry(Part.Circle(Vector(25, -82, 0), Vector(0, 0, 1), 1.6), False)
sketch10.addGeometry(Part.Circle(Vector(5, -82, 0), Vector(0, 0, 1), 1.6), False)
sketch10.addConstraint(Sketcher.Constraint("Equal", 0, 1))
sketch10.addConstraint(Sketcher.Constraint("Equal", 1, 2))
sketch10.addConstraint(Sketcher.Constraint("Equal", 2, 3))
sketch10.addConstraint(Sketcher.Constraint("Horizontal", 0, 3, 1, 3))
sketch10.addConstraint(Sketcher.Constraint("Horizontal", 1, 3, 2, 3))
sketch10.addConstraint(Sketcher.Constraint("Horizontal", 2, 3, 3, 3))
sketch10.addConstraint(Sketcher.Constraint("Diameter", 0, 3.1))
sketch10.addConstraint(Sketcher.Constraint("DistanceX", -1, 1, 0, 3, 95.0))
sketch10.addConstraint(Sketcher.Constraint("DistanceY", 0, 3, -1, 1, 82.0))
sketch10.addConstraint(Sketcher.Constraint("DistanceX", -1, 1, 1, 3, 75.0))
sketch10.addConstraint(Sketcher.Constraint("DistanceX", -1, 1, 2, 3, 25.0))
sketch10.addConstraint(Sketcher.Constraint("DistanceX", -1, 1, 3, 3, 5.0))
pocket7 = body.newObject("PartDesign::Pocket", "Pocket006")
pocket7.Profile = sketch10
pocket7.Length = 10.5
pocket7.Reversed = True

sketch11 = body.newObject("Sketcher::SketchObject", "Sketch010")
sketch11.AttachmentSupport = (doc.getObject("XY_Plane"), [""])
sketch11.MapMode = "FlatFace"
sketch11.AttachmentOffset = App.Placement(Vector(0, 0, -5), App.Rotation())
sketch11.addGeometry(Part.LineSegment(Vector(-80, 40, 0), Vector(-123, -3, 0)), False)
sketch11.addGeometry(Part.ArcOfCircle(Part.Circle(Vector(-119, -6, 0), Vector(0, 0, 1), 5), math.radians(135), math.radians(235)), False)
sketch11.addGeometry(Part.LineSegment(Vector(-122, -10, 0), Vector(-80, -40, 0)), False)
sketch11.addGeometry(Part.LineSegment(Vector(-80, -40, 0), Vector(-80, 40, 0)), False)
sketch11.addConstraint(Sketcher.Constraint("Tangent", 0, 2, 1, 1))
sketch11.addConstraint(Sketcher.Constraint("Tangent", 1, 2, 2, 1))
sketch11.addConstraint(Sketcher.Constraint("Coincident", 2, 2, 3, 1))
sketch11.addConstraint(Sketcher.Constraint("Coincident", 3, 2, 0, 1))
sketch11.addConstraint(Sketcher.Constraint("Vertical", 3))
sketch11.addConstraint(Sketcher.Constraint("Radius", 1, 5.0))
sketch11.addConstraint(Sketcher.Constraint("DistanceY", 3, 1, 3, 2, 80.0))
sketch11.addConstraint(Sketcher.Constraint("Angle", 0, Q("-135 deg")))
sketch11.addConstraint(Sketcher.Constraint("Angle", 2, Q("-35 deg")))
sketch11.addConstraint(Sketcher.Constraint("DistanceX", 2, 2, -1, 1, 80.0))
sketch11.addConstraint(Sketcher.Constraint("DistanceY", 2, 2, -1, 1, 40.0))
pocket8 = body.newObject("PartDesign::Pocket", "Pocket007")
pocket8.Profile = sketch11
pocket8.Length = 10
pocket8.Reversed = True

sketch12 = body.newObject("Sketcher::SketchObject", "Sketch011")
sketch12.AttachmentSupport = (doc.getObject("XY_Plane"), [""])
sketch12.MapMode = "FlatFace"
sketch12.AttachmentOffset = App.Placement(Vector(0, 0, 5), App.Rotation())
sketch12.addGeometry(Part.Circle(Vector(-54.3, -54.3, 0), Vector(0, 0, 1), 1.6), False)
sketch12.addGeometry(Part.Circle(Vector(-38, -65.8, 0), Vector(0, 0, 1), 1.6), False)
sketch12.addGeometry(Part.Circle(Vector(138, -65.8, 0), Vector(0, 0, 1), 1.6), False)
sketch12.addGeometry(Part.Circle(Vector(154.3, -54.3, 0), Vector(0, 0, 1), 1.6), False)
sketch12.addConstraint(Sketcher.Constraint("Equal", 0, 1))
sketch12.addConstraint(Sketcher.Constraint("Equal", 1, 2))
sketch12.addConstraint(Sketcher.Constraint("Equal", 2, 3))
sketch12.addConstraint(Sketcher.Constraint("Horizontal", 1, 3, 2, 3))
sketch12.addConstraint(Sketcher.Constraint("Horizontal", 0, 3, 3, 3))
sketch12.addConstraint(Sketcher.Constraint("Diameter", 0, 3.1))
sketch12.addConstraint(Sketcher.Constraint("DistanceX", 0, 3, -1, 1, 54.337461))
sketch12.addConstraint(Sketcher.Constraint("DistanceY", 0, 3, -1, 1, 54.30678))
sketch12.addConstraint(Sketcher.Constraint("DistanceX", 1, 3, -1, 1, 37.95442))
sketch12.addConstraint(Sketcher.Constraint("DistanceY", 1, 3, -1, 1, 65.778308))
sketch12.addConstraint(Sketcher.Constraint("DistanceX", -1, 1, 2, 3, 137.95442))
sketch12.addConstraint(Sketcher.Constraint("DistanceX", -1, 1, 3, 3, 154.337461))
pocket9 = body.newObject("PartDesign::Pocket", "Pocket008")
pocket9.Profile = sketch12
pocket9.Length = 13

doc.recompute()
